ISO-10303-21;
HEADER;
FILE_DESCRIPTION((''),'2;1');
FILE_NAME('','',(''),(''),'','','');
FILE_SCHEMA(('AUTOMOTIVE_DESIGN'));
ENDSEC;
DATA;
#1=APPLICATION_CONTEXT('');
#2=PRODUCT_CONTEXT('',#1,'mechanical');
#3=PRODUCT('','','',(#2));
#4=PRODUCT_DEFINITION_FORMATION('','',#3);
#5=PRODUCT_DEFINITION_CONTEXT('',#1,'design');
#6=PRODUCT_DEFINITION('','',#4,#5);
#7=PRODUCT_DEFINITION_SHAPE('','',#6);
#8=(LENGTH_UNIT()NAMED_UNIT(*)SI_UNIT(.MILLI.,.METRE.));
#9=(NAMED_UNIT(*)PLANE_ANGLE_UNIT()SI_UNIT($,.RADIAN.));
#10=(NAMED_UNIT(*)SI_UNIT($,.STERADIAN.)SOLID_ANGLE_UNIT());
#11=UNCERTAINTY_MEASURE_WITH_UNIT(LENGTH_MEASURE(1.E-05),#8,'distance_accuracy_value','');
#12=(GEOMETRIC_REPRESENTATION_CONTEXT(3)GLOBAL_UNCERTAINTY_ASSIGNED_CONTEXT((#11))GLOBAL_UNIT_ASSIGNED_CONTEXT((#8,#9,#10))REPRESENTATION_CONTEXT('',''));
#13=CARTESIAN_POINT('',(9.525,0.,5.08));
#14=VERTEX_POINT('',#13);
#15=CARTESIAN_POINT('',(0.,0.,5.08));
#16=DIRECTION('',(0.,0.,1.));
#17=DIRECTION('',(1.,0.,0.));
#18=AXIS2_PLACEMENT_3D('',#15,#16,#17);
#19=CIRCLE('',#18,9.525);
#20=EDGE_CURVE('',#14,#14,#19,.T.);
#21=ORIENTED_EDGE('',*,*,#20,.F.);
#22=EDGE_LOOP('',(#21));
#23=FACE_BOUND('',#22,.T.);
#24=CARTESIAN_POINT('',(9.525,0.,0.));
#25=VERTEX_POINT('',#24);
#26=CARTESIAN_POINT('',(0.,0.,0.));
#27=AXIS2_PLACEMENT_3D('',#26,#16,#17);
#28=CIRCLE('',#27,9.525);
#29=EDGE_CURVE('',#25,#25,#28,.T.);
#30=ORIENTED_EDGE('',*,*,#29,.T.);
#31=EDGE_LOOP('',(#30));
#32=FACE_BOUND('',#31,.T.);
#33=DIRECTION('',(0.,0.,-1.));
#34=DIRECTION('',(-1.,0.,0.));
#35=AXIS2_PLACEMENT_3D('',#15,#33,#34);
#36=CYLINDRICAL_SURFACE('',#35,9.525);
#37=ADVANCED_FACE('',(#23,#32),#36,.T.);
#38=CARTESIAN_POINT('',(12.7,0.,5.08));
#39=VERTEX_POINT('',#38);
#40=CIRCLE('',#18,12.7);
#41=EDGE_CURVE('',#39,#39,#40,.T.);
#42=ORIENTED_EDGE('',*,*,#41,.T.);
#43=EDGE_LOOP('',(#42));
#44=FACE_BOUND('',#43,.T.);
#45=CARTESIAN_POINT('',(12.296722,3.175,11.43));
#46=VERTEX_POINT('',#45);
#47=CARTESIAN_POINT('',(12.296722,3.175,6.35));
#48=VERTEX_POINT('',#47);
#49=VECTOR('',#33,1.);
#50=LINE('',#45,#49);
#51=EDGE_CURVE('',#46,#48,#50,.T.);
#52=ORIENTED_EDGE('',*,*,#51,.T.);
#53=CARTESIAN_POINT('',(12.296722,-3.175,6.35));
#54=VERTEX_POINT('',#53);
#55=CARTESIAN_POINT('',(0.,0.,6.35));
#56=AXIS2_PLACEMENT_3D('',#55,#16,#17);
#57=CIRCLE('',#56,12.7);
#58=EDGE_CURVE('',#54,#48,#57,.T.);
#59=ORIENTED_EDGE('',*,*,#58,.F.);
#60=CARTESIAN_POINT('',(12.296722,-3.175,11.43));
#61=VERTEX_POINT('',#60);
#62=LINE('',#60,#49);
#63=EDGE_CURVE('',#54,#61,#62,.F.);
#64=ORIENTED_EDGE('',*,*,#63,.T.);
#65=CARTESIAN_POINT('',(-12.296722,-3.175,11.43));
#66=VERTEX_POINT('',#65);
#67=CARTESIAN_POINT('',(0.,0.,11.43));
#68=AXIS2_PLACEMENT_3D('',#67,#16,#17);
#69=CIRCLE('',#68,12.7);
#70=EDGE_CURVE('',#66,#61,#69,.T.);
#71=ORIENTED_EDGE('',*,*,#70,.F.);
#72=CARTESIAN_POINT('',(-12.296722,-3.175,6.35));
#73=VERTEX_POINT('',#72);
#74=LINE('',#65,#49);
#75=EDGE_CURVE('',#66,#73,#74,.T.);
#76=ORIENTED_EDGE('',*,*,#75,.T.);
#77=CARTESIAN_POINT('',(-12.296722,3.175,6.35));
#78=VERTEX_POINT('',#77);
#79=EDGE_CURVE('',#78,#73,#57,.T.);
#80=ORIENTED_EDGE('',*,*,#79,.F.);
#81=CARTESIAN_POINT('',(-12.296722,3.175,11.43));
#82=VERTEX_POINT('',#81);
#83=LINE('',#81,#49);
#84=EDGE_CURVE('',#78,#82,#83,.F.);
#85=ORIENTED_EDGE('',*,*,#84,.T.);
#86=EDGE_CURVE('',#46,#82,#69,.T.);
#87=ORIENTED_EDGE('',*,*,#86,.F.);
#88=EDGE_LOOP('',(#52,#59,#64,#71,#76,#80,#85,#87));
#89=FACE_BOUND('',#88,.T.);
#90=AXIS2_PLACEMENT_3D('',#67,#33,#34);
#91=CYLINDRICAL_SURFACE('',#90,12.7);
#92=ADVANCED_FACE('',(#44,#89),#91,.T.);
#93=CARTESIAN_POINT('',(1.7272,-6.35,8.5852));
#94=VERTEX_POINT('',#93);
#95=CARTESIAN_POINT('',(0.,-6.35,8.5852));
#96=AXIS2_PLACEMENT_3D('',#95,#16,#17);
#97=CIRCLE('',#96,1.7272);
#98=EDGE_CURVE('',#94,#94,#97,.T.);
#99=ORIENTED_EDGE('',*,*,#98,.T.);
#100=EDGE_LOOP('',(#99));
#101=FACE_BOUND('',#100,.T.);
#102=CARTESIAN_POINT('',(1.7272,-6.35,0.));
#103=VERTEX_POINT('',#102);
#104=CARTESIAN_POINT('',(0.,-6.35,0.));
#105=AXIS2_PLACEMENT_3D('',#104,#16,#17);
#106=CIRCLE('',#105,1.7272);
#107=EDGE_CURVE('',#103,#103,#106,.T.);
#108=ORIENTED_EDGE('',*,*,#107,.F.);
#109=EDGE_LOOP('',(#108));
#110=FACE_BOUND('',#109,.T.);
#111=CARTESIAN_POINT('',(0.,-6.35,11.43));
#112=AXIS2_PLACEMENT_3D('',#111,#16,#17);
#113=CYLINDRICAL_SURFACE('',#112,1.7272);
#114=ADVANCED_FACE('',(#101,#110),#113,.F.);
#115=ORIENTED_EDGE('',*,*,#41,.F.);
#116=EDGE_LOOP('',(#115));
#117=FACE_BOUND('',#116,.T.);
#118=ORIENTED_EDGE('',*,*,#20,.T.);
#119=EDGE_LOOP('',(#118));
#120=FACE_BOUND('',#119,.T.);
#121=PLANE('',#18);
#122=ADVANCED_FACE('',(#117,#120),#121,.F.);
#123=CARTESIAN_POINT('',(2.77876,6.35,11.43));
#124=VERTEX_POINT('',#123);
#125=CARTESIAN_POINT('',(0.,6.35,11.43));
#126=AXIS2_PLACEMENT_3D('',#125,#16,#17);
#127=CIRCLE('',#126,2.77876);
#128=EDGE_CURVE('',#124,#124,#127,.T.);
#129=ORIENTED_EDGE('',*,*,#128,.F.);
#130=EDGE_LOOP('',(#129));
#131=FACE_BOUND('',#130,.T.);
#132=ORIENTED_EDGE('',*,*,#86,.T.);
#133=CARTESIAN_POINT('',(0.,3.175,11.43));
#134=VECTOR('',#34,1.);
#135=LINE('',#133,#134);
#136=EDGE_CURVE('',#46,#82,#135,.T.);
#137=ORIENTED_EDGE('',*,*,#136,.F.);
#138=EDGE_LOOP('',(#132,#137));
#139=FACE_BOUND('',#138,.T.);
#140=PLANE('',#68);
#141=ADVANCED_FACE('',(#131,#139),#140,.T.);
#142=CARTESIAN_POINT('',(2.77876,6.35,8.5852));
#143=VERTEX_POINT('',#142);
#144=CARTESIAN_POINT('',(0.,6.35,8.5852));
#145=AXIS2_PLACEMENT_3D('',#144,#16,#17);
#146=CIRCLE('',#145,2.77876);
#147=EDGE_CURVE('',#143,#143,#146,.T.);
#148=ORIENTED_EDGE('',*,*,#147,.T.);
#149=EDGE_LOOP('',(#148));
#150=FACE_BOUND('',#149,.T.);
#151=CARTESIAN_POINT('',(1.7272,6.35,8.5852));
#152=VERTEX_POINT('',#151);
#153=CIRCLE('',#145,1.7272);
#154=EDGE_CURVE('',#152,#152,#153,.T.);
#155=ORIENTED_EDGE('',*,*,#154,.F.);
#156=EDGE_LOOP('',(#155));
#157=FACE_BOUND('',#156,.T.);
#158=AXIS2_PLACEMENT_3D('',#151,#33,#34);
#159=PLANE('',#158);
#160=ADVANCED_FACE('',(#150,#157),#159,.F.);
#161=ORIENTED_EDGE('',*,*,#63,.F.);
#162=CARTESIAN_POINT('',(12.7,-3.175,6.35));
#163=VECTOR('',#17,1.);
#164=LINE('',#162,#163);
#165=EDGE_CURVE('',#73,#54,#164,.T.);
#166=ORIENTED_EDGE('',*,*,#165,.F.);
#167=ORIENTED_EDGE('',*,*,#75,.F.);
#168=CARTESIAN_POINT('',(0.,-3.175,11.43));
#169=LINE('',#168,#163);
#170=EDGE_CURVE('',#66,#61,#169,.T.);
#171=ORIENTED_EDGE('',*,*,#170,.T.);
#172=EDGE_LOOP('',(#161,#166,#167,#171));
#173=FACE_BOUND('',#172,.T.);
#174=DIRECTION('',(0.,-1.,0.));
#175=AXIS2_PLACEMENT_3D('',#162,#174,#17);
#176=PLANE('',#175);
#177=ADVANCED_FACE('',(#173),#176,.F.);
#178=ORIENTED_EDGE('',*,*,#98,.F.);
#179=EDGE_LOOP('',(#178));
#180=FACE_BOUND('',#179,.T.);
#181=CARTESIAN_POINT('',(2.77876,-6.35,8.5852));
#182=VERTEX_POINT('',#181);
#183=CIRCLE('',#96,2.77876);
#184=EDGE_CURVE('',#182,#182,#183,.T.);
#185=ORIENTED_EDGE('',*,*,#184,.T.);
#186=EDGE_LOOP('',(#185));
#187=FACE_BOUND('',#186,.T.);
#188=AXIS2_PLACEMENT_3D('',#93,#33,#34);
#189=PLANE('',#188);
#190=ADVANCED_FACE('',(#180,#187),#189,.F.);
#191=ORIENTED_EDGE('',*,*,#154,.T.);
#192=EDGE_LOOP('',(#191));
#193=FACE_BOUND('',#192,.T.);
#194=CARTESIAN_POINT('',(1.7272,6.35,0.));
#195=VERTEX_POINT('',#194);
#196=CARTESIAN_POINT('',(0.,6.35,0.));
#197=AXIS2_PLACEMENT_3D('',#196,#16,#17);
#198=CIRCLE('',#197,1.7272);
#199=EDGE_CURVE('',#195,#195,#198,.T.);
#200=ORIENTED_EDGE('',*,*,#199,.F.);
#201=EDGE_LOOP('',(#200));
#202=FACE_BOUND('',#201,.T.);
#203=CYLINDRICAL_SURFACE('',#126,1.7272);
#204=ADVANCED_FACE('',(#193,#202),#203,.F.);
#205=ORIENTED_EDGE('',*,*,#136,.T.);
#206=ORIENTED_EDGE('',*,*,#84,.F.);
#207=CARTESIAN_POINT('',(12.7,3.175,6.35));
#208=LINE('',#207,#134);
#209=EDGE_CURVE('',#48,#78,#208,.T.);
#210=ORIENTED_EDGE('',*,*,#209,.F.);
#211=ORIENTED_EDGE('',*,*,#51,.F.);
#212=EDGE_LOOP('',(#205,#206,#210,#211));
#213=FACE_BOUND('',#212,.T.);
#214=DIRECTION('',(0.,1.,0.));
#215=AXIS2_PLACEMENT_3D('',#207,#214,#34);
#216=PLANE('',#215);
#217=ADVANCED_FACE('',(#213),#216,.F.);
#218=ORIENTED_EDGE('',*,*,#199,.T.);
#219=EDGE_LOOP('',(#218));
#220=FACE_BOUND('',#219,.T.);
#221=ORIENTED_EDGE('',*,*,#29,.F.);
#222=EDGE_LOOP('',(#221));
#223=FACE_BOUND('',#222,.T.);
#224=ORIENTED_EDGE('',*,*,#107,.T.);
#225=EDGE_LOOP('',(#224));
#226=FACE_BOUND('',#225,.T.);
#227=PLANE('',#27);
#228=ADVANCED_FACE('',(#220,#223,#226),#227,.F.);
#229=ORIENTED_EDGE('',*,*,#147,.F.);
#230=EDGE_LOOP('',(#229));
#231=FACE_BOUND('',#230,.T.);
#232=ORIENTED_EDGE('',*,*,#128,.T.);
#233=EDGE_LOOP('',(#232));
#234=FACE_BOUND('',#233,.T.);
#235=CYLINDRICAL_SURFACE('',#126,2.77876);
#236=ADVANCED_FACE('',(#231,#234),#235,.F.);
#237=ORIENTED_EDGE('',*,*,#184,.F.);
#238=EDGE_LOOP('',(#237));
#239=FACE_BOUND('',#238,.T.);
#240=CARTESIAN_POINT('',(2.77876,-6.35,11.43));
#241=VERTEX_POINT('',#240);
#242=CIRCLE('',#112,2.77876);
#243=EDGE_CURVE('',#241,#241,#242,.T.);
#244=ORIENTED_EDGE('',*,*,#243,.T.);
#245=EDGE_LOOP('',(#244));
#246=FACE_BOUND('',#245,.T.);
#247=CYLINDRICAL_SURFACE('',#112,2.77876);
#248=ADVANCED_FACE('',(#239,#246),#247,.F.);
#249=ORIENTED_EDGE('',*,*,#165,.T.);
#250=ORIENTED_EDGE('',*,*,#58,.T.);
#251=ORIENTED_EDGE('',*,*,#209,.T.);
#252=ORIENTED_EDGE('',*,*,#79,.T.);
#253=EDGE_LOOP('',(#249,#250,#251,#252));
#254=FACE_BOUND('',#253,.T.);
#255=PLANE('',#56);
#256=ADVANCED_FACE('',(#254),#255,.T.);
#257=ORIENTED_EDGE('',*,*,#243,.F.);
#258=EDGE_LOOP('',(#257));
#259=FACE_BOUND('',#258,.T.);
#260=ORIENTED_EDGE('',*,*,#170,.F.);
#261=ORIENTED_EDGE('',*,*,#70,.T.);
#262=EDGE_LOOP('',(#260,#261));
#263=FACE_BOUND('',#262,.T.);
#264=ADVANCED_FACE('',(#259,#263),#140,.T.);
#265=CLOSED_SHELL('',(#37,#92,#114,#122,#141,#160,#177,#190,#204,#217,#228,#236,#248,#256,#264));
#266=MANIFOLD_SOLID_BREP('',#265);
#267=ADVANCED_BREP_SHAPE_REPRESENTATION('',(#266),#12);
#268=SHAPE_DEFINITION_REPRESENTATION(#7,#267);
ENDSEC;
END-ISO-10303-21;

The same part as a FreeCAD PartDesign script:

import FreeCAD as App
import Part
import Sketcher
from FreeCAD import Vector
Q = App.Units.Quantity

doc = App.newDocument("Part")
body = doc.addObject("PartDesign::Body", "Body")

# Sketch on XY plane
sketch1 = body.newObject("Sketcher::SketchObject", "Sketch")
sketch1.AttachmentSupport = (doc.getObject("XY_Plane"), [""])
sketch1.MapMode = "FlatFace"
sketch1.addGeometry(Part.Circle(Vector(0, 0, 0), Vector(0, 0, 1), 10), False)
sketch1.addConstraint(Sketcher.Constraint("Coincident", 0, 3, -1, 1))
sketch1.addConstraint(Sketcher.Constraint("Diameter", 0, Q("0.75 in")))
pad1 = body.newObject("PartDesign::Pad", "Pad")
pad1.Profile = sketch1
pad1.Length = Q("0.2 in")

# Sketch on XY plane
sketch2 = body.newObject("Sketcher::SketchObject", "Sketch001")
sketch2.AttachmentSupport = (doc.getObject("XY_Plane"), [""])
sketch2.MapMode = "FlatFace"
sketch2.AttachmentOffset = App.Placement(Vector(0, 0, 0.2 * 25.4), App.Rotation())
sketch2.addGeometry(Part.Circle(Vector(0, 0, 0), Vector(0, 0, 1), 13), False)
sketch2.addConstraint(Sketcher.Constraint("Coincident", 0, 3, -1, 1))
sketch2.addConstraint(Sketcher.Constraint("Diameter", 0, Q("1 in")))
pad2 = body.newObject("PartDesign::Pad", "Pad001")
pad2.Profile = sketch2
pad2.Length = Q("0.25 in")

# Sketch on XY plane
sketch3 = body.newObject("Sketcher::SketchObject", "Sketch002")
sketch3.AttachmentSupport = (doc.getObject("XY_Plane"), [""])
sketch3.MapMode = "FlatFace"
sketch3.AttachmentOffset = App.Placement(Vector(0, 0, 0.45 * 25.4), App.Rotation())
sketch3.addGeometry(Part.LineSegment(Vector(-13, 3, 0), Vector(-13, -3, 0)), False)
sketch3.addGeometry(Part.LineSegment(Vector(-13, -3, 0), Vector(13, -3, 0)), False)
sketch3.addGeometry(Part.LineSegment(Vector(13, -3, 0), Vector(13, 3, 0)), False)
sketch3.addGeometry(Part.LineSegment(Vector(13, 3, 0), Vector(-13, 3, 0)), False)
sketch3.addConstraint(Sketcher.Constraint("Coincident", 0, 2, 1, 1))
sketch3.addConstraint(Sketcher.Constraint("Coincident", 1, 2, 2, 1))
sketch3.addConstraint(Sketcher.Constraint("Coincident", 2, 2, 3, 1))
sketch3.addConstraint(Sketcher.Constraint("Coincident", 3, 2, 0, 1))
sketch3.addConstraint(Sketcher.Constraint("Vertical", 0))
sketch3.addConstraint(Sketcher.Constraint("Horizontal", 1))
sketch3.addConstraint(Sketcher.Constraint("Vertical", 2))
sketch3.addConstraint(Sketcher.Constraint("Horizontal", 3))
sketch3.addConstraint(Sketcher.Constraint("Symmetric", 0, 2, 2, 2, -1, 1))
sketch3.addConstraint(Sketcher.Constraint("DistanceX", 1, 1, 1, 2, Q("1 in")))
sketch3.addConstraint(Sketcher.Constraint("DistanceY", 0, 2, 0, 1, Q("0.25 in")))
pocket1 = body.newObject("PartDesign::Pocket", "Pocket")
pocket1.Profile = sketch3
pocket1.Length = Q("0.2 in")

# Sketch on XY plane
sketch4 = body.newObject("Sketcher::SketchObject", "Sketch003")
sketch4.AttachmentSupport = (doc.getObject("XY_Plane"), [""])
sketch4.MapMode = "FlatFace"
sketch4.AttachmentOffset = App.Placement(Vector(0, 0, 0.45 * 25.4), App.Rotation())
sketch4.addGeometry(Part.Circle(Vector(0, -6.3, 0), Vector(0, 0, 1), 1.7), False)
sketch4.addGeometry(Part.Circle(Vector(0, 6.3, 0), Vector(0, 0, 1), 1.7), False)
sketch4.addConstraint(Sketcher.Constraint("Equal", 0, 1))
sketch4.addConstraint(Sketcher.Constraint("Symmetric", 0, 3, 1, 3, -1, 1))
sketch4.addConstraint(Sketcher.Constraint("PointOnObject", 0, 3, -2))
sketch4.addConstraint(Sketcher.Constraint("Diameter", 0, Q("0.136 in")))
sketch4.addConstraint(Sketcher.Constraint("DistanceY", 0, 3, 1, 3, Q("0.5 in")))
doc.recompute()
hole = body.newObject("PartDesign::Hole", "Hole")
hole.Profile = sketch4
hole.ThreadType = "None"
hole.Diameter = Q("0.136 in")
hole.DepthType = "ThroughAll"
hole.HoleCutType = "Counterbore"
hole.HoleCutDiameter = Q("0.2188 in")
hole.HoleCutDepth = Q("0.112 in")

doc.recompute()
